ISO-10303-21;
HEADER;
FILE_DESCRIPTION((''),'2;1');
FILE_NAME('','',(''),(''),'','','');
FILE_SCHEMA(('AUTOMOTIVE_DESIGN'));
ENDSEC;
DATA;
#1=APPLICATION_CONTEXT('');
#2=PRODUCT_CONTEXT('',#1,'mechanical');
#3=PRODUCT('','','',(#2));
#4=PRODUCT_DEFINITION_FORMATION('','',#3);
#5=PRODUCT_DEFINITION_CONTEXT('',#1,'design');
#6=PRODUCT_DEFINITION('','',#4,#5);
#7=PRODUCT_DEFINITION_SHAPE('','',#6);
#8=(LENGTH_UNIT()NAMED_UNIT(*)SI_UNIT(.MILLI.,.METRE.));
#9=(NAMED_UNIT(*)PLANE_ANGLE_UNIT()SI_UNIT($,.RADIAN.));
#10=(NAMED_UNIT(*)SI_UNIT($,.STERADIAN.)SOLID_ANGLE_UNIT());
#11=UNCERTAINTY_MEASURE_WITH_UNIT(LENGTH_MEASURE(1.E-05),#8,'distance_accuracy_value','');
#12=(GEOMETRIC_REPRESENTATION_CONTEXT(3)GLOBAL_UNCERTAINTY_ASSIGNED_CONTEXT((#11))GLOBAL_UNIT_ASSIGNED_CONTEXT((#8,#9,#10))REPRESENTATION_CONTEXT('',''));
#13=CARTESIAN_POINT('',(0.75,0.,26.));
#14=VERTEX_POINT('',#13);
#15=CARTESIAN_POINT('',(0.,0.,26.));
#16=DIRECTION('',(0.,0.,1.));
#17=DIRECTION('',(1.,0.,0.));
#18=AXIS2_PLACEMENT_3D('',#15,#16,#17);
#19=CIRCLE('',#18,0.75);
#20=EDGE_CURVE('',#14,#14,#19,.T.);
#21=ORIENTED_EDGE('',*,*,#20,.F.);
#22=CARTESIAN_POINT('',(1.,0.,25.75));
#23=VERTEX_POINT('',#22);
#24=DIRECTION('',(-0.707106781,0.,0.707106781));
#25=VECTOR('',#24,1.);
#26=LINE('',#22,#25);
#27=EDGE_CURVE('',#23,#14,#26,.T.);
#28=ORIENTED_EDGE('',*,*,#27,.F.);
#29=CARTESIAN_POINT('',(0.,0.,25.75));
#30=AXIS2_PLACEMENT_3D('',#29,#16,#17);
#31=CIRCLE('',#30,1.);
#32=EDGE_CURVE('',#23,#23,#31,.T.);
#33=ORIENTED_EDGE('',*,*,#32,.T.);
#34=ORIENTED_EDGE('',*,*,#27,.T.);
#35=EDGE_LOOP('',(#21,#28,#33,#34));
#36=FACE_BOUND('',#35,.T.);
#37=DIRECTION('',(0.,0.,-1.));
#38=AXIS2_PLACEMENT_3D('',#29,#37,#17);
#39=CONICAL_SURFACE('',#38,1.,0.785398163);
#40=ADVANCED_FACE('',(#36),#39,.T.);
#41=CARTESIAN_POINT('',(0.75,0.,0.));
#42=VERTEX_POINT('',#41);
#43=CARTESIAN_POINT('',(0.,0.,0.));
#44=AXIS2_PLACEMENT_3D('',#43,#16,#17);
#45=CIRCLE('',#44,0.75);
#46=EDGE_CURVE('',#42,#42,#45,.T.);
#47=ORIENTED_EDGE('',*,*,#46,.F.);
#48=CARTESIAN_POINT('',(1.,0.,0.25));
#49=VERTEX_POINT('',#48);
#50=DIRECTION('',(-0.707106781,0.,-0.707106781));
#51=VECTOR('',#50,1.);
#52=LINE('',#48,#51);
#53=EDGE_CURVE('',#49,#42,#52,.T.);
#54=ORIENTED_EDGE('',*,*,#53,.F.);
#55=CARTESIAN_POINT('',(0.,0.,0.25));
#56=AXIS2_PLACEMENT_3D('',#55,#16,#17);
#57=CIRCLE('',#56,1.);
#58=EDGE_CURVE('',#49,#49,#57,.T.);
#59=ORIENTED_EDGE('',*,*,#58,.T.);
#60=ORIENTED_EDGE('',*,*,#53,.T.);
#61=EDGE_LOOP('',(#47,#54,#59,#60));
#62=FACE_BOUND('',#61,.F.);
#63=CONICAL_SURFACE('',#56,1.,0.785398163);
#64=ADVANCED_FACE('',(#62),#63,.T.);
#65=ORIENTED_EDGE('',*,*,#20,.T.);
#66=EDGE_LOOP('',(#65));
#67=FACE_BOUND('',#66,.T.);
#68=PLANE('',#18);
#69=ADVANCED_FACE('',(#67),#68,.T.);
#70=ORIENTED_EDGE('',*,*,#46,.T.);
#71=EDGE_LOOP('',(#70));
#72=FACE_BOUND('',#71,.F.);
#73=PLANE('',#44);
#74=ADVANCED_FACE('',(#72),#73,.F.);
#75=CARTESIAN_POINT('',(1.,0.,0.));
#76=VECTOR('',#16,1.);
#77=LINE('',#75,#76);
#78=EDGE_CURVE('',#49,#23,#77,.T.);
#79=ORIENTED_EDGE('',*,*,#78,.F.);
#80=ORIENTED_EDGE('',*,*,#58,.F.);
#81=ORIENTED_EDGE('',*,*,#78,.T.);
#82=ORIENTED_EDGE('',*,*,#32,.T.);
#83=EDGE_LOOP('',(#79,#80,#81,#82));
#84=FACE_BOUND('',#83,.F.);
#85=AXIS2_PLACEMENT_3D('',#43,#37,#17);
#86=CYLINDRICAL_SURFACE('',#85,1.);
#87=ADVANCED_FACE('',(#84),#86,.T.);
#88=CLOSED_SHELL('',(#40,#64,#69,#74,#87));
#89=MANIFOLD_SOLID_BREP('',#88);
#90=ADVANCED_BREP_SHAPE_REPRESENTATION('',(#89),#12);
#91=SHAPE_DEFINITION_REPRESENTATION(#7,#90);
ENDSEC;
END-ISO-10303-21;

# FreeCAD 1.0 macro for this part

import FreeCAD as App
import Part
import Sketcher
from FreeCAD import Vector
Q = App.Units.Quantity


def edges_at(feature, points):
    """Names of the edges that pass closest to the given points."""
    edges = feature.Shape.Edges
    near = lambda p: min(range(len(edges)), key=lambda i: edges[i].distToShape(Part.Vertex(*p))[0])
    return sorted({f"Edge{near(p) + 1}" for p in points})

doc = App.newDocument("Part")
params = doc.addObject("Spreadsheet::Sheet", "Params")
for row, (alias, value) in enumerate([
    ("sketch1_diameter", "2 mm"),
    ("pad1_length", "26 mm"),
    ("chamfer_size", "0.25 mm"),
], start=1):
    params.set(f"A{row}", alias)
    params.set(f"B{row}", "=" + value)
    params.setAlias(f"B{row}", alias)

body = doc.addObject("PartDesign::Body", "Body")

sketch1 = body.newObject("Sketcher::SketchObject", "Sketch")
sketch1.AttachmentSupport = (doc.getObject("XY_Plane"), [""])
sketch1.MapMode = "FlatFace"
sketch1.addGeometry(Part.Circle(Vector(0, 0, 0), Vector(0, 0, 1), 1), False)
sketch1.addConstraint(Sketcher.Constraint("Coincident", 0, 3, -1, 1))
sketch1.addConstraint(Sketcher.Constraint("Diameter", 0, Q("2 mm")))
sketch1.setExpression("Constraints[1]", "Params.sketch1_diameter")
pad1 = body.newObject("PartDesign::Pad", "Pad")
pad1.Profile = sketch1
pad1.setExpression("Length", "Params.pad1_length")
doc.recompute()

chamfer = body.newObject("PartDesign::Chamfer", "Chamfer")
chamfer.Base = (pad1, edges_at(pad1, [(-1, 0, 26), (-1, 0, 0)]))
chamfer.setExpression("Size", "Params.chamfer_size")

doc.recompute()
